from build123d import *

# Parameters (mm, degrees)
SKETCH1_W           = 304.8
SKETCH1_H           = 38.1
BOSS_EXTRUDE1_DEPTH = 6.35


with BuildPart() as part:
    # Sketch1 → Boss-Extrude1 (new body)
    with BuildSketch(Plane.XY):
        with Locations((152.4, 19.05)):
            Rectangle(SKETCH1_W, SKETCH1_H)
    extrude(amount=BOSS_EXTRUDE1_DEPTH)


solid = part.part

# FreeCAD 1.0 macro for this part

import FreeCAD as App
import Part
import Sketcher
Q = App.Units.Quantity


def add_polygon(sketch, points):
    """Adds a closed chain of lines whose ends are joined by coincident constraints."""
    first, n = sketch.GeometryCount, len(points)
    for a, b in zip(points, points[1:] + points[:1]):
        sketch.addGeometry(Part.LineSegment(App.Vector(*a, 0), App.Vector(*b, 0)), False)
    for i in range(n):
        sketch.addConstraint(Sketcher.Constraint("Coincident", first + i, 2, first + (i + 1) % n, 1))

doc = App.newDocument("Part")
body = doc.addObject("PartDesign::Body", "Body")

# Sketch on XY plane
sketch1 = body.newObject("Sketcher::SketchObject", "Sketch")
sketch1.AttachmentSupport = (doc.getObject("XY_Plane"), [""])
sketch1.MapMode = "FlatFace"
add_polygon(sketch1, [(0, 38.1), (0, 0), (304.8, 0), (304.8, 38.1)])  # lines 0-3
sketch1.addConstraint([
    Sketcher.Constraint("Vertical", 0),
    Sketcher.Constraint("Horizontal", 1),
    Sketcher.Constraint("Vertical", 2),
    Sketcher.Constraint("Horizontal", 3),
    Sketcher.Constraint("Coincident", 0, 2, -1, 1),
    Sketcher.Constraint("DistanceX", 1, 1, 1, 2, Q("12 in")),
    Sketcher.Constraint("DistanceY", 0, 2, 0, 1, Q("1.5 in")),
])
pad1 = body.newObject("PartDesign::Pad", "Pad")
pad1.Profile = sketch1
pad1.Length = Q("0.25 in")

doc.recompute()
